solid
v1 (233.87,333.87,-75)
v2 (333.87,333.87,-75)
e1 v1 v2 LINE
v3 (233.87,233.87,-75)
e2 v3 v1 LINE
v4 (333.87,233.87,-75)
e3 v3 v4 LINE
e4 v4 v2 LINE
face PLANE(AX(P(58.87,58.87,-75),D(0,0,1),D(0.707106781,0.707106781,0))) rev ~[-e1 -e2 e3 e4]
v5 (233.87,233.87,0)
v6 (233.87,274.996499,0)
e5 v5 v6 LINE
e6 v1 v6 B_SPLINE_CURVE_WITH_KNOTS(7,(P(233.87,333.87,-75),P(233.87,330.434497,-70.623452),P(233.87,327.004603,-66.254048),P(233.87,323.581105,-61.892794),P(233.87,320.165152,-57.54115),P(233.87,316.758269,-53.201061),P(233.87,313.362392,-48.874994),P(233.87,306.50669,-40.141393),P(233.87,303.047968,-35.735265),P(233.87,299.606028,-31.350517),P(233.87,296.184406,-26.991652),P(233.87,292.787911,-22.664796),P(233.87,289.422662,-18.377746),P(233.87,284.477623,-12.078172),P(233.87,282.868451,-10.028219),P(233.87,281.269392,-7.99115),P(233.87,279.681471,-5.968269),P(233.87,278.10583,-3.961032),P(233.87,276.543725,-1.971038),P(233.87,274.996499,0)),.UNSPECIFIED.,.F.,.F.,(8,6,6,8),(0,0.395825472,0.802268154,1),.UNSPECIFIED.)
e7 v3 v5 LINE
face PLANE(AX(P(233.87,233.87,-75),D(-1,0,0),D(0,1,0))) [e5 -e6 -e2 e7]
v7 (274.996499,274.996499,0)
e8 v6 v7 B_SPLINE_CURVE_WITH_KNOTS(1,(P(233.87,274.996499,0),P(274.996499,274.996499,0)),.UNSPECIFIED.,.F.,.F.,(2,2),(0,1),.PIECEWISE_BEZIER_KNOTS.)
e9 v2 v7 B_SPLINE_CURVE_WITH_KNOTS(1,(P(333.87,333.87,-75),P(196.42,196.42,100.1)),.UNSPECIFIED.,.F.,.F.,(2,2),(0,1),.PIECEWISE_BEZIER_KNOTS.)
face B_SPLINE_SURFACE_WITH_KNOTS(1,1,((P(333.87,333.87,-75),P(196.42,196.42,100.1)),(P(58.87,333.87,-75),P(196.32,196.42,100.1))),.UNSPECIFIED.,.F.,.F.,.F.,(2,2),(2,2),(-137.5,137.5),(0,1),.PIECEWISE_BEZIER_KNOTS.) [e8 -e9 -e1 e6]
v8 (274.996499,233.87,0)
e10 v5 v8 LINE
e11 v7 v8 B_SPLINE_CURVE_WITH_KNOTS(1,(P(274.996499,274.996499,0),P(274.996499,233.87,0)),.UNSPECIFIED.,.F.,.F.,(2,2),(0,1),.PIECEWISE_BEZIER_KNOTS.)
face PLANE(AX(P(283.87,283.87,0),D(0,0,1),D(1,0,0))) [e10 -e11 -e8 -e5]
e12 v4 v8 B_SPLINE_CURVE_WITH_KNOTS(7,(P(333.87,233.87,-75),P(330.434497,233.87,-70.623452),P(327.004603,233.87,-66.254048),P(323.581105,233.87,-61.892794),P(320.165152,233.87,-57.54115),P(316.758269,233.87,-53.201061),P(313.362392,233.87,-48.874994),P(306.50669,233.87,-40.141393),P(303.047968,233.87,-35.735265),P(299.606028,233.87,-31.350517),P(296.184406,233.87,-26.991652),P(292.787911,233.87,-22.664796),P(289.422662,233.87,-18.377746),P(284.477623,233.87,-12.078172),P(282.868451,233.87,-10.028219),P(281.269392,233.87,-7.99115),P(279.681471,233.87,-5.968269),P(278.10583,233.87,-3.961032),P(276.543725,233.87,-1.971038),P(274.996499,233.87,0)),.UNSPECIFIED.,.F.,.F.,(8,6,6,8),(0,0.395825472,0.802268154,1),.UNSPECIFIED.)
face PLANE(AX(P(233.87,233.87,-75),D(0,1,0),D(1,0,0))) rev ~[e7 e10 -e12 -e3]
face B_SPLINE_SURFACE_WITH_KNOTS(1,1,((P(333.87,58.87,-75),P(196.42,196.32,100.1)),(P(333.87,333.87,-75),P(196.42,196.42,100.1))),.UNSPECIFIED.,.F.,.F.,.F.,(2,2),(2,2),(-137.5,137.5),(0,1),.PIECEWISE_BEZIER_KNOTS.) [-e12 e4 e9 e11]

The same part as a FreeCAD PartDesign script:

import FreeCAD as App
import Part
import Sketcher
from FreeCAD import Vector
Q = App.Units.Quantity


def add_polygon(sketch, points):
    """Adds a closed chain of lines whose ends are joined by coincident constraints."""
    first, n = sketch.GeometryCount, len(points)
    for a, b in zip(points, points[1:] + points[:1]):
        sketch.addGeometry(Part.LineSegment(App.Vector(*a, 0), App.Vector(*b, 0)), False)
    for i in range(n):
        sketch.addConstraint(Sketcher.Constraint("Coincident", first + i, 2, first + (i + 1) % n, 1))

doc = App.newDocument("Part")
body = doc.addObject("PartDesign::Body", "Body")

sketch1 = body.newObject("Sketcher::SketchObject", "Sketch")
sketch1.AttachmentSupport = (doc.getObject("XY_Plane"), [""])
sketch1.MapMode = "FlatFace"
add_polygon(sketch1, [(175, 275), (175, 175), (275, 175), (275, 275)])
sketch1.addConstraint(Sketcher.Constraint("Vertical", 0))
sketch1.addConstraint(Sketcher.Constraint("Horizontal", 1))
sketch1.addConstraint(Sketcher.Constraint("Vertical", 2))
sketch1.addConstraint(Sketcher.Constraint("Horizontal", 3))
sketch1.addConstraint(Sketcher.Constraint("Equal", 3, 0))
sketch1.addConstraint(Sketcher.Constraint("DistanceX", 1, 1, 1, 2, Q("100 mm")))
sketch1.addConstraint(Sketcher.Constraint("DistanceX", -1, 1, 0, 2, Q("175 mm")))
sketch1.addConstraint(Sketcher.Constraint("DistanceY", -1, 1, 0, 2, Q("175 mm")))
pad1 = body.newObject("PartDesign::Pad", "Pad")
pad1.Profile = sketch1
pad1.Length = 75
body2 = doc.addObject("PartDesign::Body", "Body001")

sketch2 = body2.newObject("Sketcher::SketchObject", "Sketch001")
sketch2.AttachmentSupport = (doc.getObject("XY_Plane001"), [""])
sketch2.MapMode = "FlatFace"
add_polygon(sketch2, [(0, 275), (0, 0), (275, 0), (275, 275)])
sketch2.addConstraint(Sketcher.Constraint("Vertical", 0))
sketch2.addConstraint(Sketcher.Constraint("Horizontal", 1))
sketch2.addConstraint(Sketcher.Constraint("Vertical", 2))
sketch2.addConstraint(Sketcher.Constraint("Horizontal", 3))
sketch2.addConstraint(Sketcher.Constraint("Coincident", 0, 2, -1, 1))
sketch2.addConstraint(Sketcher.Constraint("Equal", 3, 0))
sketch2.addConstraint(Sketcher.Constraint("DistanceX", 1, 1, 1, 2, Q("275 mm")))

sketch3 = body2.newObject("Sketcher::SketchObject", "Sketch002")
sketch3.AttachmentSupport = (doc.getObject("XY_Plane001"), [""])
sketch3.MapMode = "FlatFace"
sketch3.AttachmentOffset = App.Placement(Vector(0, 0, 175.1), App.Rotation())
add_polygon(sketch3, [(137.45, 137.55), (137.45, 137.45), (137.55, 137.45), (137.55, 137.55)])
sketch3.addConstraint(Sketcher.Constraint("Vertical", 0))
sketch3.addConstraint(Sketcher.Constraint("Horizontal", 1))
sketch3.addConstraint(Sketcher.Constraint("Vertical", 2))
sketch3.addConstraint(Sketcher.Constraint("Horizontal", 3))
sketch3.addConstraint(Sketcher.Constraint("Equal", 3, 0))
sketch3.addConstraint(Sketcher.Constraint("DistanceX", 1, 1, 1, 2, Q("0.1 mm")))
sketch3.addConstraint(Sketcher.Constraint("DistanceX", -1, 1, 0, 2, Q("137.45 mm")))
sketch3.addConstraint(Sketcher.Constraint("DistanceY", -1, 1, 0, 2, Q("137.45 mm")))

additiveloft = body2.newObject("PartDesign::AdditiveLoft", "AdditiveLoft")
additiveloft.Profile = sketch2
additiveloft.Sections = [sketch3]
doc.recompute()

boolean = body2.newObject("PartDesign::Boolean", "Boolean")
boolean.Type = "Common"
boolean.addObjects([body])
body3 = doc.addObject("PartDesign::Body", "Body002")
doc.recompute()

body2.Placement = App.Placement(Vector(58.87, 58.87, -75), App.Rotation(Vector(0, 0, 1), 0))
boolean2 = body3.newObject("PartDesign::Boolean", "Boolean001")
boolean2.Type = "Fuse"
boolean2.addObjects([body2])

doc.recompute()
